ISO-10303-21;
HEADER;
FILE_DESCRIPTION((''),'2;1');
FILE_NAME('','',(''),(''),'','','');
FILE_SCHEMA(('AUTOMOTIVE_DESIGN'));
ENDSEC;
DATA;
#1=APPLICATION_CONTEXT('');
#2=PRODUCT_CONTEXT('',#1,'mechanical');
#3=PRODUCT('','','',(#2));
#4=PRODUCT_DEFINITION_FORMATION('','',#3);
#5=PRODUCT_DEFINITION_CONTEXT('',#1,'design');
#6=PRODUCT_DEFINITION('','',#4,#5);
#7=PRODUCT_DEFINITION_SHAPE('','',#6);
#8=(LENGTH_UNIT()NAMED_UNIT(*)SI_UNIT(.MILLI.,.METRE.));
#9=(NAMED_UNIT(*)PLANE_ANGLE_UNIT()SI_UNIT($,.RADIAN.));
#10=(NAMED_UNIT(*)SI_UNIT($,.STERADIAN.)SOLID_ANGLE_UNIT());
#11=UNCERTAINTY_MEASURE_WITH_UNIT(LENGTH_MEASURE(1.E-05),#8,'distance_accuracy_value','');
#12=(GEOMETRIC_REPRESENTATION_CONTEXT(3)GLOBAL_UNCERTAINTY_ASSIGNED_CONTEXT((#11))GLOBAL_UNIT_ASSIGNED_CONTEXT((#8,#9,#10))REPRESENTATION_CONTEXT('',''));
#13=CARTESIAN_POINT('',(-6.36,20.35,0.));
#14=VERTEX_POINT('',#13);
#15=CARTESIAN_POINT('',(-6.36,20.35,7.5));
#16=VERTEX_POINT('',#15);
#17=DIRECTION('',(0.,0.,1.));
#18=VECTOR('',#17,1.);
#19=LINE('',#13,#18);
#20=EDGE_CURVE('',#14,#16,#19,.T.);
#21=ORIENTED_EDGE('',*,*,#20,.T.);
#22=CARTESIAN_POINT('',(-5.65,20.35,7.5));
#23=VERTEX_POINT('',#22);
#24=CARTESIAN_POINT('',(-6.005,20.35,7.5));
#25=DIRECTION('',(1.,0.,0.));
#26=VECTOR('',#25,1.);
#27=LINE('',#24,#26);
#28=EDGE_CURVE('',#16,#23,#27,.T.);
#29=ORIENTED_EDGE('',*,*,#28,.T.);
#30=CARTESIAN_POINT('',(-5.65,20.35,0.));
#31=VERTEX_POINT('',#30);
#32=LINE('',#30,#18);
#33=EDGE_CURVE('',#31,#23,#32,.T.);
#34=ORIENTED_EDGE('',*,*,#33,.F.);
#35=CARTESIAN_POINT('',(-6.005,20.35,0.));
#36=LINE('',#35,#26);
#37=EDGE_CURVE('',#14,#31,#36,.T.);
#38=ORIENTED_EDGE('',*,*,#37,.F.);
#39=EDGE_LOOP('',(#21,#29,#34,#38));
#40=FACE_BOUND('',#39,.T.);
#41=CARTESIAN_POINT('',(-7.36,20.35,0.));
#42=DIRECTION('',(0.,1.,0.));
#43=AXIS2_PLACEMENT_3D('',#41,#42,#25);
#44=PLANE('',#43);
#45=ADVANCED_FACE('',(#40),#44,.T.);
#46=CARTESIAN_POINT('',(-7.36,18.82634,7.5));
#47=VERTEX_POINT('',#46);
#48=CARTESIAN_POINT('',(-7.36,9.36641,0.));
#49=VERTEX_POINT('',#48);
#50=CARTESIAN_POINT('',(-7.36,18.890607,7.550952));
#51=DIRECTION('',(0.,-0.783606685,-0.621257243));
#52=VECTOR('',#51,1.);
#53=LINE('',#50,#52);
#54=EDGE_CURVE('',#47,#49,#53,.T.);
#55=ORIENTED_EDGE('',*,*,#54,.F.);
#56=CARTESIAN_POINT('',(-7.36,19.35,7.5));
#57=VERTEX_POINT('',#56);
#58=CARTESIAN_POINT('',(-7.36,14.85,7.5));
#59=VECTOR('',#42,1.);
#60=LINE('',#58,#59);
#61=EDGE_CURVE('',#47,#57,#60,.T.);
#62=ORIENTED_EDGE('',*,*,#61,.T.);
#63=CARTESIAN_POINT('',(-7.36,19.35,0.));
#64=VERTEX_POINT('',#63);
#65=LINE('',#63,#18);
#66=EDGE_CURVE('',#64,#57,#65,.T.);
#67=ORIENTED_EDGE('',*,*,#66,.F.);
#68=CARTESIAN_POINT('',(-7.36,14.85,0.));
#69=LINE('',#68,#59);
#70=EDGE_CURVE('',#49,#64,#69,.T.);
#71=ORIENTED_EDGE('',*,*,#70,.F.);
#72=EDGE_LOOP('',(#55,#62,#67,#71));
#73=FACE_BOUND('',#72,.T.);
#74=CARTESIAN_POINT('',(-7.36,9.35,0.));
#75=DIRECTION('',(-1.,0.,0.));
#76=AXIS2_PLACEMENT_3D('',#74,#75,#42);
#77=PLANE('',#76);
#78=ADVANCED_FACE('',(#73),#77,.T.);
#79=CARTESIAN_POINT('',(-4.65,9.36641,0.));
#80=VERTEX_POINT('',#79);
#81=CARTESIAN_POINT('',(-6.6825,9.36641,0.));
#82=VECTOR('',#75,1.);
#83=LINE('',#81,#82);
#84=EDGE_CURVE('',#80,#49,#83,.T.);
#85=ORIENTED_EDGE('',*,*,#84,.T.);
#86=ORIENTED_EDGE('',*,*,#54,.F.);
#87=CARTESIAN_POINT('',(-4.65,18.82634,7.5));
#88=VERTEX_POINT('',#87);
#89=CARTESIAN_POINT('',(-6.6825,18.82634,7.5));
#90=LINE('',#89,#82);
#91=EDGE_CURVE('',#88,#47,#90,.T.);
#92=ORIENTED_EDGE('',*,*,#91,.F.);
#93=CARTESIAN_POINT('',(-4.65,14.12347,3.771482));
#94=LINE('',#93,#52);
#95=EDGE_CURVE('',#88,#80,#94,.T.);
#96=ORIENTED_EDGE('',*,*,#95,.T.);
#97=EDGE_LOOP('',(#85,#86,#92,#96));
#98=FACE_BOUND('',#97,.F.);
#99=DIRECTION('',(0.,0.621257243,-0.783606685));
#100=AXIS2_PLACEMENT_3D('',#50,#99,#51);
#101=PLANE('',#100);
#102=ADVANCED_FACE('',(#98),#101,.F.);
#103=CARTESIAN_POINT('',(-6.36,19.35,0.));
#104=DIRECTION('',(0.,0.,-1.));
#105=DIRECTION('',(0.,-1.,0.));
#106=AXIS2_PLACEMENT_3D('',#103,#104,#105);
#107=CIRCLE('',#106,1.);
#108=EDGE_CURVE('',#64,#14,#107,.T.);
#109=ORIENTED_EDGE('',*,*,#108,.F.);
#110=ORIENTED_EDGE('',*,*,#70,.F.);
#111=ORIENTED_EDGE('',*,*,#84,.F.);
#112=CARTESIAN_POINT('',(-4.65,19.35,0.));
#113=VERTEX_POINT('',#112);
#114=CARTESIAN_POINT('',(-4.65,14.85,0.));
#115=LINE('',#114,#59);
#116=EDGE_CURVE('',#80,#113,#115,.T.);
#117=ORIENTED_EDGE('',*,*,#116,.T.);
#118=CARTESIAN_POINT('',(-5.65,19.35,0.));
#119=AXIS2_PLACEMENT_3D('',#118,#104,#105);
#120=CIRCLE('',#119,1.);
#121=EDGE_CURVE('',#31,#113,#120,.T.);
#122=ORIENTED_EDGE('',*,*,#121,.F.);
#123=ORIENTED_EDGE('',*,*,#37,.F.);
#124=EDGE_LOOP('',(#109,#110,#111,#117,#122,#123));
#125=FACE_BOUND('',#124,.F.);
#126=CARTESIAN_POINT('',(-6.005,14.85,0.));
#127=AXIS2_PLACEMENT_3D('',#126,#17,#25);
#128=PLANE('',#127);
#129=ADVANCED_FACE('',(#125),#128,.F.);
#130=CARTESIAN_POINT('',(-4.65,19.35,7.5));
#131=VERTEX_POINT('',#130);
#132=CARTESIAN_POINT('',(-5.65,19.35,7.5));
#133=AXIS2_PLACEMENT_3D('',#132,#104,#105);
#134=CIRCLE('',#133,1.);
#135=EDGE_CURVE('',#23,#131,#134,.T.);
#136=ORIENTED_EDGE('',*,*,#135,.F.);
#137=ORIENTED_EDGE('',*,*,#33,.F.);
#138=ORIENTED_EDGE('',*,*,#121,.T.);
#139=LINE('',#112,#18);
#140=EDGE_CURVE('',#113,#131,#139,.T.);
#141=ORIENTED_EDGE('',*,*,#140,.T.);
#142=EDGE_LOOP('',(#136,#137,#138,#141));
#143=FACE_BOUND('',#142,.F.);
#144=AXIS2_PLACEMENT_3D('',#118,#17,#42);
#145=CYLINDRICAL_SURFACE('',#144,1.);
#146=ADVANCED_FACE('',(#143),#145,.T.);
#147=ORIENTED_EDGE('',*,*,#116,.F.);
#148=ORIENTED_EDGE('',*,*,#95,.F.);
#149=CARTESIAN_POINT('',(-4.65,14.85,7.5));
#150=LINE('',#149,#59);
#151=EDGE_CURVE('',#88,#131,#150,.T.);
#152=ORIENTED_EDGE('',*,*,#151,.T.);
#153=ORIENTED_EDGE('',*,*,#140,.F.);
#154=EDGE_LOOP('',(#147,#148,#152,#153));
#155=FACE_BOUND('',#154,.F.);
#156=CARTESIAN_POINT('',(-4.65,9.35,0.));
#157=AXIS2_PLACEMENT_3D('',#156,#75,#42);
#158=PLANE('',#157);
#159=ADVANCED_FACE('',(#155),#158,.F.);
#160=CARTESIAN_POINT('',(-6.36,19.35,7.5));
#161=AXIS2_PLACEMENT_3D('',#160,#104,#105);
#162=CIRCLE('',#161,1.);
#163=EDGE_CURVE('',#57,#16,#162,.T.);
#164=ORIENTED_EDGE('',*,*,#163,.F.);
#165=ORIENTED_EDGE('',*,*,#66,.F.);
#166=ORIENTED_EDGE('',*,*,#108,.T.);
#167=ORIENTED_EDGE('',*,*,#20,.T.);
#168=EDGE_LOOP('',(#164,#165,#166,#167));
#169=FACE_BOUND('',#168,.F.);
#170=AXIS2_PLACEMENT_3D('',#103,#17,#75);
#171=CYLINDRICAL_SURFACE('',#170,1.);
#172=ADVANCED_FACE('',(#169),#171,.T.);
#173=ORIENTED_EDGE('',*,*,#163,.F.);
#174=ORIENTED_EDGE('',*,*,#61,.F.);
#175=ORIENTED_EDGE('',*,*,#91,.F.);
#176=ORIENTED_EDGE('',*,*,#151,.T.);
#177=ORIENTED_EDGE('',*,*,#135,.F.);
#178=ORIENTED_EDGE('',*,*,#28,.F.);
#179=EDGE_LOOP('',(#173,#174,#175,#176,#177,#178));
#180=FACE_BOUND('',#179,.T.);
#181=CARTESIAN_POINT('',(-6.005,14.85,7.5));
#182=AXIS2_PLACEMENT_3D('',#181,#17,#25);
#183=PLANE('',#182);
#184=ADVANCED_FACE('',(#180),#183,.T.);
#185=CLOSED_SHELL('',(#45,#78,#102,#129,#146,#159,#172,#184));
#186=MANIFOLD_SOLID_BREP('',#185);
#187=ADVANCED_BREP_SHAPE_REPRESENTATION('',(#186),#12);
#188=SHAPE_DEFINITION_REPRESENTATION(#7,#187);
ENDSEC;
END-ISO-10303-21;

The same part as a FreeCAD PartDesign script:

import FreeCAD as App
import Part
import Sketcher

V = App.Vector
Q = App.Units.Quantity


def edges_at(feature, points):
    """Names of the edges that pass closest to the given points."""
    edges = feature.Shape.Edges
    near = lambda p: min(range(len(edges)), key=lambda i: edges[i].distToShape(Part.Vertex(*p))[0])
    return sorted({f"Edge{near(p) + 1}" for p in points})


def add_polygon(sketch, points):
    """Adds a closed chain of lines whose ends are joined by coincident constraints."""
    first, n = sketch.GeometryCount, len(points)
    for a, b in zip(points, points[1:] + points[:1]):
        sketch.addGeometry(Part.LineSegment(App.Vector(*a, 0), App.Vector(*b, 0)), False)
    for i in range(n):
        sketch.addConstraint(Sketcher.Constraint("Coincident", first + i, 2, first + (i + 1) % n, 1))

doc = App.newDocument("Part")
params = doc.addObject("Spreadsheet::Sheet", "Params")
for row, (alias, value) in enumerate([
    ("sketch1_height", "11 mm"),
    ("sketch1_width", "2.71 mm"),
    ("pad1_length", "7.5 mm"),
    ("pocket1_length", "5 mm"),
    ("fillet_radius", "1 mm"),
], start=1):
    params.set(f"A{row}", alias)
    params.set(f"B{row}", "=" + value)
    params.setAlias(f"B{row}", alias)

body = doc.addObject("PartDesign::Body", "Body")

sketch1 = body.newObject("Sketcher::SketchObject", "Sketch")
sketch1.AttachmentSupport = (doc.getObject("XY_Plane"), [""])
sketch1.MapMode = "FlatFace"
add_polygon(sketch1, [(-7.4, 20.4), (-7.4, 9.3), (-4.7, 9.3), (-4.7, 20.4)])
sketch1.addConstraint([
    Sketcher.Constraint("Vertical", 0),
    Sketcher.Constraint("Horizontal", 1),
    Sketcher.Constraint("Vertical", 2),
    Sketcher.Constraint("Horizontal", 3),
    Sketcher.Constraint("DistanceY", 0, 2, 0, 1, Q("11 mm")),
    Sketcher.Constraint("DistanceX", 1, 1, 1, 2, Q("2.71 mm")),
    Sketcher.Constraint("DistanceX", 0, 2, -1, 1, Q("7.36 mm")),
    Sketcher.Constraint("DistanceY", -1, 1, 0, 2, Q("9.35 mm")),
])
sketch1.setExpression("Constraints[8]", "Params.sketch1_height")
sketch1.setExpression("Constraints[9]", "Params.sketch1_width")
pad1 = body.newObject("PartDesign::Pad", "Pad")
pad1.Profile = sketch1
pad1.setExpression("Length", "Params.pad1_length")

sketch2 = body.newObject("Sketcher::SketchObject", "Sketch001")
sketch2.AttachmentSupport = (doc.getObject("YZ_Plane"), [""])
sketch2.MapMode = "FlatFace"
sketch2.AttachmentOffset = App.Placement(V(0, 0, -7.36), App.Rotation())
add_polygon(sketch2, [(19, 8), (9, 0), (9, 9)])
sketch2.addConstraint([
    Sketcher.Constraint("Vertical", 1),
    Sketcher.Constraint("Distance", 0, Q("12.386301 mm")),
    Sketcher.Constraint("DistanceY", 1, 1, 1, 2, Q("8.740751 mm")),
    Sketcher.Constraint("DistanceX", -1, 1, 0, 2, Q("9.184619 mm")),
    Sketcher.Constraint("DistanceY", -1, 1, 2, 2, Q("7.550952 mm")),
    Sketcher.Constraint("DistanceY", 0, 2, 2, 2, Q("7.695079 mm")),
])
pocket1 = body.newObject("PartDesign::Pocket", "Pocket")
pocket1.Profile = sketch2
pocket1.setExpression("Length", "Params.pocket1_length")
pocket1.Reversed = True
doc.recompute()

fillet = body.newObject("PartDesign::Fillet", "Fillet")
fillet.Base = (pocket1, edges_at(pocket1, [(-7.36, 20.35, 3.75), (-4.65, 20.35, 3.75)]))
fillet.setExpression("Radius", "Params.fillet_radius")

doc.recompute()
